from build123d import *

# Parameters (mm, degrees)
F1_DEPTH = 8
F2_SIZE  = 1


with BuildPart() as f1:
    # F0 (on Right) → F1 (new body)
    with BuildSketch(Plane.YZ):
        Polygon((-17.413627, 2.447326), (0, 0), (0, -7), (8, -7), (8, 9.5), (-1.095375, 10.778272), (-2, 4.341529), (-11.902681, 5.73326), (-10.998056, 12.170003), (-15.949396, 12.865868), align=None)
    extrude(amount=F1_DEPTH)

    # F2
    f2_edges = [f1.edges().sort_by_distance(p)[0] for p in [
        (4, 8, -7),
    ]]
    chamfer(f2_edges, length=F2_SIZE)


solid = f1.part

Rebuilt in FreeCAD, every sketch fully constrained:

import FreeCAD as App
import Part
import Sketcher

V = App.Vector
Q = App.Units.Quantity


def edges_at(feature, points):
    """Names of the edges that pass closest to the given points."""
    edges = feature.Shape.Edges
    near = lambda p: min(range(len(edges)), key=lambda i: edges[i].distToShape(Part.Vertex(*p))[0])
    return sorted({f"Edge{near(p) + 1}" for p in points})

doc = App.newDocument("Part")
body = doc.addObject("PartDesign::Body", "Body")

# Sketch on YZ plane
sketch1 = body.newObject("Sketcher::SketchObject", "Sketch")
sketch1.AttachmentSupport = (doc.getObject("YZ_Plane"), [""])
sketch1.MapMode = "FlatFace"
sketch1.addGeometry([
    Part.LineSegment(V(-17.4, 2.4, 0), V(0, 0, 0)),  # 0
    Part.LineSegment(V(0, 0, 0), V(0, -7, 0)),  # 1
    Part.LineSegment(V(0, -7, 0), V(8, -7, 0)),  # 2
    Part.LineSegment(V(8, -7, 0), V(8, 9.5, 0)),  # 3
    Part.LineSegment(V(8, 9.5, 0), V(-1.1, 10.8, 0)),  # 4
    Part.LineSegment(V(-1.1, 10.8, 0), V(-2, 4.3, 0)),  # 5
    Part.LineSegment(V(-2, 4.3, 0), V(-11.9, 5.7, 0)),  # 6
    Part.LineSegment(V(-11.9, 5.7, 0), V(-11, 12.2, 0)),  # 7
    Part.LineSegment(V(-11, 12.2, 0), V(-15.9, 12.9, 0)),  # 8
    Part.LineSegment(V(-15.9, 12.9, 0), V(-17.4, 2.4, 0)),  # 9
], False)
sketch1.addConstraint([
    Sketcher.Constraint("Coincident", 0, 2, 1, 1),
    Sketcher.Constraint("Coincident", 1, 2, 2, 1),
    Sketcher.Constraint("Coincident", 2, 2, 3, 1),
    Sketcher.Constraint("Coincident", 3, 2, 4, 1),
    Sketcher.Constraint("Coincident", 4, 2, 5, 1),
    Sketcher.Constraint("Coincident", 5, 2, 6, 1),
    Sketcher.Constraint("Coincident", 6, 2, 7, 1),
    Sketcher.Constraint("Coincident", 7, 2, 8, 1),
    Sketcher.Constraint("Coincident", 8, 2, 9, 1),
    Sketcher.Constraint("Coincident", 9, 2, 0, 1),
    Sketcher.Constraint("Vertical", 1),
    Sketcher.Constraint("Horizontal", 2),
    Sketcher.Constraint("Vertical", 3),
    Sketcher.Constraint("Coincident", 0, 2, -1, 1),
    Sketcher.Constraint("Parallel", 0, 4),
    Sketcher.Constraint("Perpendicular", 4, 5),
    Sketcher.Constraint("Perpendicular", 5, 6),
    Sketcher.Constraint("Perpendicular", 6, 7),
    Sketcher.Constraint("Perpendicular", 7, 8),
    Sketcher.Constraint("Perpendicular", 8, 9),
    Sketcher.Constraint("Equal", 5, 7),
    Sketcher.Constraint("DistanceX", 2, 1, 2, 2, Q("8 mm")),
    Sketcher.Constraint("DistanceY", 1, 2, 1, 1, Q("7 mm")),
    Sketcher.Constraint("Angle", 0, Q("-8.000001 deg")),
    Sketcher.Constraint("Distance", 6, Q("10 mm")),
    Sketcher.Constraint("Distance", 8, Q("5 mm")),
    Sketcher.Constraint("DistanceY", 3, 1, 3, 2, Q("16.5 mm")),
    Sketcher.Constraint("DistanceX", 5, 2, -1, 1, Q("2 mm")),
    Sketcher.Constraint("Distance", 5, Q("6.500001 mm")),
])
pad1 = body.newObject("PartDesign::Pad", "Pad")
pad1.Profile = sketch1
pad1.Length = 8
doc.recompute()

chamfer = body.newObject("PartDesign::Chamfer", "Chamfer")
chamfer.Base = (pad1, edges_at(pad1, [(4, 8, -7)]))
chamfer.Size = 1

doc.recompute()
